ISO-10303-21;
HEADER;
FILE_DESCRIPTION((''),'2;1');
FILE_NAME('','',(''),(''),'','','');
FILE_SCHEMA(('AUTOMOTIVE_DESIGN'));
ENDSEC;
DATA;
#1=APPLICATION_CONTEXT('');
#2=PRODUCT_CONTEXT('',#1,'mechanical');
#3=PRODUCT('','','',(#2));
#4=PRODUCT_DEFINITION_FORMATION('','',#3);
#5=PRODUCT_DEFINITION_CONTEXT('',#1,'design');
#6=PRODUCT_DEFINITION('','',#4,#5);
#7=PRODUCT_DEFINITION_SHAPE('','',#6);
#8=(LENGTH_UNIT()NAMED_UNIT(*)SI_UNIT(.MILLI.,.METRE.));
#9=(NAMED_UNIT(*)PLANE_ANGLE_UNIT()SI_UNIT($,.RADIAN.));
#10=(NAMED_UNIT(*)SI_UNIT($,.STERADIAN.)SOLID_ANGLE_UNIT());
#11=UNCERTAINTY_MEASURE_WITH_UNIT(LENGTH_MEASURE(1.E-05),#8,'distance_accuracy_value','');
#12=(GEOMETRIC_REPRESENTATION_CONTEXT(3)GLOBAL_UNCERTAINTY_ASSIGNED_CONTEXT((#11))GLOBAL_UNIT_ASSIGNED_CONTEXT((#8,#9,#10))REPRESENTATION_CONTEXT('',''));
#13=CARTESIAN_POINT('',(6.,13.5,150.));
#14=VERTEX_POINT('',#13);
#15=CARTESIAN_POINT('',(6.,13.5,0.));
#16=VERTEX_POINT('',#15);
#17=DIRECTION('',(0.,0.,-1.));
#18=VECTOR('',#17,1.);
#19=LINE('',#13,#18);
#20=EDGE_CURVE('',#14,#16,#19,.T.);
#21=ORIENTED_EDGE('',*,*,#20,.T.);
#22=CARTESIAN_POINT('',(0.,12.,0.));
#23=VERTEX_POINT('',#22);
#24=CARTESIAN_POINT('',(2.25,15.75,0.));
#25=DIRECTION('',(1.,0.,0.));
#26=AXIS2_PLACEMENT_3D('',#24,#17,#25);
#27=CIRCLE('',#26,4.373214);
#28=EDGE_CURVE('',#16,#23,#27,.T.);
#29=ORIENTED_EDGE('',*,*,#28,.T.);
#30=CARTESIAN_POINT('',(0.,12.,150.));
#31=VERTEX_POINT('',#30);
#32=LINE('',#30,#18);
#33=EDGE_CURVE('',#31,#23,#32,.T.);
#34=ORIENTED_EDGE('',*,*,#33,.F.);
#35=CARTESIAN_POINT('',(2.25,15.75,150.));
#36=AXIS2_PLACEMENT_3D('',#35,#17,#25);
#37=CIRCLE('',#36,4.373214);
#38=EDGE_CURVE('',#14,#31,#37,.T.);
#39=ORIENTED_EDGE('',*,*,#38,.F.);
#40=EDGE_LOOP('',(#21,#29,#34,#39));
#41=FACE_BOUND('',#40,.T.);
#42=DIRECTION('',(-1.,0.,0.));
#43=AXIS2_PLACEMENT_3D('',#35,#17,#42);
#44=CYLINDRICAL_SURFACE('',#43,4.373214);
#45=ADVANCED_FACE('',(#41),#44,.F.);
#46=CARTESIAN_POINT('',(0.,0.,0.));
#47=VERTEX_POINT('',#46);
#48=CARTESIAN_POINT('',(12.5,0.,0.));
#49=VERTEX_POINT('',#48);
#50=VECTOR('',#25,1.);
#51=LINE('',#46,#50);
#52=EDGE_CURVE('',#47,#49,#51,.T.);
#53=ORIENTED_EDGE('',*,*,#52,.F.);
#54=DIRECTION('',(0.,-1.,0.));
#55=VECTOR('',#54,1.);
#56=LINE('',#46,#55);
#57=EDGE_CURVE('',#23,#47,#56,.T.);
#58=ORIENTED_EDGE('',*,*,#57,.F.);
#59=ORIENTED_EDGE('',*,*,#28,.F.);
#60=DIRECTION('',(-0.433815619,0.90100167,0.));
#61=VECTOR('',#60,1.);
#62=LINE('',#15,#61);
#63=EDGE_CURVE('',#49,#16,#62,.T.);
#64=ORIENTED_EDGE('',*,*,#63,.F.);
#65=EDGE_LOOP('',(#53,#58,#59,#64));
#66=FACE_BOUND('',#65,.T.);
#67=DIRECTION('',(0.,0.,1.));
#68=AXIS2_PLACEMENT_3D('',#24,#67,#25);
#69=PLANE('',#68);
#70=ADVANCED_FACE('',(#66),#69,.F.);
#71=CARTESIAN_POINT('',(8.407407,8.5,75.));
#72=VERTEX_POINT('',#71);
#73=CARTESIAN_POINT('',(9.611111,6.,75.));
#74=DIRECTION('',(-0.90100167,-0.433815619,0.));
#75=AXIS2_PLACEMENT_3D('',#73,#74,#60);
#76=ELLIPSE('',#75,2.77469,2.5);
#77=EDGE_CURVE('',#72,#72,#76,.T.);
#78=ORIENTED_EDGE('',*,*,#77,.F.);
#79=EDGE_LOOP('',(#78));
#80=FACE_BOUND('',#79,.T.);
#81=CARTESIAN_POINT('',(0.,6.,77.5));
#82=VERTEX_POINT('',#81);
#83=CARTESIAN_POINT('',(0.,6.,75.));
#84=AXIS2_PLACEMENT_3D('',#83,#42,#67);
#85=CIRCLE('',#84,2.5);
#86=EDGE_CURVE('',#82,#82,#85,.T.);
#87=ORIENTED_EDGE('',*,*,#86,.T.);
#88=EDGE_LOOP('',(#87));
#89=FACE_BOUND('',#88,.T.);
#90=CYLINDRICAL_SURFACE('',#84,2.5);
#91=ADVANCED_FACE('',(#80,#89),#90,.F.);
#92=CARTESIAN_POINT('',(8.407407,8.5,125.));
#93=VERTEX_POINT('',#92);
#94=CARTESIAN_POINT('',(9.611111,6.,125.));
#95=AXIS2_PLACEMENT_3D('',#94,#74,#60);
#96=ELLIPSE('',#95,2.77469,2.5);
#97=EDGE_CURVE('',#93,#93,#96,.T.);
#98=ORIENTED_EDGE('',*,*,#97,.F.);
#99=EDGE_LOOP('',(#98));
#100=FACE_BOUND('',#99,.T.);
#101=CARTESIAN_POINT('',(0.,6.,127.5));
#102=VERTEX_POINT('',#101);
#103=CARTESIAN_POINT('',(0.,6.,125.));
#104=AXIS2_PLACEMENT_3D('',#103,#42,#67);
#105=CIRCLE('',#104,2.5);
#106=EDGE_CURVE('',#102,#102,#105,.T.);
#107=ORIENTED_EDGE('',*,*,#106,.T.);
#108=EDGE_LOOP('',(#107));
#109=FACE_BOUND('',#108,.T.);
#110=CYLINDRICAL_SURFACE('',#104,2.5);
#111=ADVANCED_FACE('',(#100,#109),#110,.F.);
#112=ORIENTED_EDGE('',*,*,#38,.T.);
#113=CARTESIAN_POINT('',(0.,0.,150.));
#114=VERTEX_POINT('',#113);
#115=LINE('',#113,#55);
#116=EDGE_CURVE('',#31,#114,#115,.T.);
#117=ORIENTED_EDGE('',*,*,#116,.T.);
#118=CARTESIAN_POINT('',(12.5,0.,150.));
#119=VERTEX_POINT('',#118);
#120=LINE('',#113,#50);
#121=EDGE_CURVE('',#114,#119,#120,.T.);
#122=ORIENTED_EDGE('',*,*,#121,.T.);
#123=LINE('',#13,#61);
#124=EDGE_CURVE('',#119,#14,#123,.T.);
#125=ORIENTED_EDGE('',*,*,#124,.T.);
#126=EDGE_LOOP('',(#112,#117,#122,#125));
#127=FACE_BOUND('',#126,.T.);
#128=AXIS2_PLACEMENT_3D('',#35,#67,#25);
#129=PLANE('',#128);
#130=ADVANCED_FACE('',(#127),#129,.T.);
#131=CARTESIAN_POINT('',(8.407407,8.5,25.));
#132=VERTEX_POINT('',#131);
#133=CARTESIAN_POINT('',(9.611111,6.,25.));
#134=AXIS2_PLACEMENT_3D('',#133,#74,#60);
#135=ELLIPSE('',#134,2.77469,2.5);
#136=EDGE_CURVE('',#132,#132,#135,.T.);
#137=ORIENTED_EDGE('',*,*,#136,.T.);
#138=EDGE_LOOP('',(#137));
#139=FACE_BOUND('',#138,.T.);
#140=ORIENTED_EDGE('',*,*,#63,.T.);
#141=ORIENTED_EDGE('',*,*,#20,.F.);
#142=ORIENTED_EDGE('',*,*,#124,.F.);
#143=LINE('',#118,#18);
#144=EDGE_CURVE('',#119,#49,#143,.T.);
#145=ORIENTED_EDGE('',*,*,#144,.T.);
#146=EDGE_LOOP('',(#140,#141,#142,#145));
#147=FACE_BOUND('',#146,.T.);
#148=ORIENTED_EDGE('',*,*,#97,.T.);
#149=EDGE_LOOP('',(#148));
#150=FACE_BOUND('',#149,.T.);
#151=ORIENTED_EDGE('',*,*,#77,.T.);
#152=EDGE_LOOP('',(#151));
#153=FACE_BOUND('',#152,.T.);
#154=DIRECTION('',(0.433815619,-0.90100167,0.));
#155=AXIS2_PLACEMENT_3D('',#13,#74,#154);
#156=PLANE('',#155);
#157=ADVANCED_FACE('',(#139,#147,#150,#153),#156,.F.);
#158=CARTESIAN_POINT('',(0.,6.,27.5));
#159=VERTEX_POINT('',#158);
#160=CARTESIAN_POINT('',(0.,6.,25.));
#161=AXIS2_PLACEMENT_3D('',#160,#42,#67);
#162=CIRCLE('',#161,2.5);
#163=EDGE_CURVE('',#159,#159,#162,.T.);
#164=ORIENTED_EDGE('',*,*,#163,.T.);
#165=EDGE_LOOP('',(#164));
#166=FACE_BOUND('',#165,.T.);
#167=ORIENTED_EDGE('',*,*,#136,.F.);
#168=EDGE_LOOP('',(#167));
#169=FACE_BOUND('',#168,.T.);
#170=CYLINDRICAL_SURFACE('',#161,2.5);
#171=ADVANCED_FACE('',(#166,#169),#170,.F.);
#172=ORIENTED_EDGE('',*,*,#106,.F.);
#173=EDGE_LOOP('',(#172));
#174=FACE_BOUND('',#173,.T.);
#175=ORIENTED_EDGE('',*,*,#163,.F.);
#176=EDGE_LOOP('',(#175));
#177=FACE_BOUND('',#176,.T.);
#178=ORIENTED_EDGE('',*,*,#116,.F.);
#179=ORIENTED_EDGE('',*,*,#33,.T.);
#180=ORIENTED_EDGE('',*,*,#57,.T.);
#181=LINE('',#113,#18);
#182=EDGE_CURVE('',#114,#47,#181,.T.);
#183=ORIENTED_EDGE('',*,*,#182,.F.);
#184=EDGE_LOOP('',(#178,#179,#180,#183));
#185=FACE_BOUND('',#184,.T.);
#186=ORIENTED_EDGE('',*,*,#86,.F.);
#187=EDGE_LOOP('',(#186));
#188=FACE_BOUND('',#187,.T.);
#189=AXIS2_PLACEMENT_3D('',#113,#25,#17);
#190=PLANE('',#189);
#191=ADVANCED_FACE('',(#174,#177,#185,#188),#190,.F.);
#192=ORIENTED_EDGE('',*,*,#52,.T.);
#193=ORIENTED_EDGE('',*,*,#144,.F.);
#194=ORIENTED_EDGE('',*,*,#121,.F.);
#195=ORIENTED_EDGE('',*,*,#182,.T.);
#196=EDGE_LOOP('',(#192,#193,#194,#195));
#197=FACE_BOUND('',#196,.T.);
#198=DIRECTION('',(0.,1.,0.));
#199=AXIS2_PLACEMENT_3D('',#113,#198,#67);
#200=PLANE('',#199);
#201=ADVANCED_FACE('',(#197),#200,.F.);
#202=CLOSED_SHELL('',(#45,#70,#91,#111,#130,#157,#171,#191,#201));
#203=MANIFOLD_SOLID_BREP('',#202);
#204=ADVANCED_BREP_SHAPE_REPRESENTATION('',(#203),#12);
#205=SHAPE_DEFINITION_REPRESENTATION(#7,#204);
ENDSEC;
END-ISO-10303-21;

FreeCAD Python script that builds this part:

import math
import FreeCAD as App
import Part
import Sketcher
Q = App.Units.Quantity

doc = App.newDocument("Part")
body = doc.addObject("PartDesign::Body", "Body")

sketch1 = body.newObject("Sketcher::SketchObject", "Sketch")
sketch1.AttachmentSupport = (doc.getObject("XY_Plane"), [""])
sketch1.MapMode = "FlatFace"
sketch1.addGeometry(Part.LineSegment(App.Vector(0, 0, 0), App.Vector(12.5, 0, 0)), False)
sketch1.addGeometry(Part.LineSegment(App.Vector(12.5, 0, 0), App.Vector(6, 13.5, 0)), False)
sketch1.addGeometry(Part.ArcOfCircle(Part.Circle(App.Vector(2.2, 15.8, 0), App.Vector(0, 0, 1), 4.4), math.radians(-121), math.radians(-31)), False)
sketch1.addGeometry(Part.LineSegment(App.Vector(0, 12, 0), App.Vector(0, 0, 0)), False)
sketch1.addConstraint(Sketcher.Constraint("Coincident", 0, 2, 1, 1))
sketch1.addConstraint(Sketcher.Constraint("Coincident", 1, 2, 2, 2))
sketch1.addConstraint(Sketcher.Constraint("Coincident", 2, 1, 3, 1))
sketch1.addConstraint(Sketcher.Constraint("Coincident", 3, 2, 0, 1))
sketch1.addConstraint(Sketcher.Constraint("Horizontal", 0))
sketch1.addConstraint(Sketcher.Constraint("Vertical", 3))
sketch1.addConstraint(Sketcher.Constraint("Coincident", 3, 2, -1, 1))
sketch1.addConstraint(Sketcher.Constraint("DistanceY", 3, 2, 3, 1, Q("12 mm")))
sketch1.addConstraint(Sketcher.Constraint("DistanceX", 0, 1, 0, 2, Q("12.5 mm")))
sketch1.addConstraint(Sketcher.Constraint("DistanceX", -1, 1, 1, 2, Q("6 mm")))
sketch1.addConstraint(Sketcher.Constraint("DistanceY", -1, 1, 1, 2, Q("13.5 mm")))
sketch1.addConstraint(Sketcher.Constraint("DistanceX", -1, 1, 2, 3, Q("2.25 mm")))
pad1 = body.newObject("PartDesign::Pad", "Pad")
pad1.Profile = sketch1
pad1.Length = 150

sketch2 = body.newObject("Sketcher::SketchObject", "Sketch001")
sketch2.AttachmentSupport = (doc.getObject("YZ_Plane"), [""])
sketch2.MapMode = "FlatFace"
sketch2.addGeometry(Part.Circle(App.Vector(6, 25, 0), App.Vector(0, 0, 1), 2.5), False)
sketch2.addGeometry(Part.Circle(App.Vector(6, 75, 0), App.Vector(0, 0, 1), 2.5), False)
sketch2.addGeometry(Part.Circle(App.Vector(6, 125, 0), App.Vector(0, 0, 1), 2.5), False)
sketch2.addConstraint(Sketcher.Constraint("Equal", 0, 1))
sketch2.addConstraint(Sketcher.Constraint("Equal", 1, 2))
sketch2.addConstraint(Sketcher.Constraint("Vertical", 0, 3, 1, 3))
sketch2.addConstraint(Sketcher.Constraint("Vertical", 1, 3, 2, 3))
sketch2.addConstraint(Sketcher.Constraint("Diameter", 0, Q("5 mm")))
sketch2.addConstraint(Sketcher.Constraint("DistanceX", -1, 1, 0, 3, Q("6 mm")))
sketch2.addConstraint(Sketcher.Constraint("DistanceY", -1, 1, 0, 3, Q("25 mm")))
sketch2.addConstraint(Sketcher.Constraint("DistanceY", -1, 1, 1, 3, Q("75 mm")))
sketch2.addConstraint(Sketcher.Constraint("DistanceY", -1, 1, 2, 3, Q("125 mm")))
doc.recompute()
hole = body.newObject("PartDesign::Hole", "Hole")
hole.Profile = sketch2
hole.ThreadType = "None"
hole.Diameter = 5
hole.DepthType = "ThroughAll"
hole.Reversed = True

doc.recompute()
